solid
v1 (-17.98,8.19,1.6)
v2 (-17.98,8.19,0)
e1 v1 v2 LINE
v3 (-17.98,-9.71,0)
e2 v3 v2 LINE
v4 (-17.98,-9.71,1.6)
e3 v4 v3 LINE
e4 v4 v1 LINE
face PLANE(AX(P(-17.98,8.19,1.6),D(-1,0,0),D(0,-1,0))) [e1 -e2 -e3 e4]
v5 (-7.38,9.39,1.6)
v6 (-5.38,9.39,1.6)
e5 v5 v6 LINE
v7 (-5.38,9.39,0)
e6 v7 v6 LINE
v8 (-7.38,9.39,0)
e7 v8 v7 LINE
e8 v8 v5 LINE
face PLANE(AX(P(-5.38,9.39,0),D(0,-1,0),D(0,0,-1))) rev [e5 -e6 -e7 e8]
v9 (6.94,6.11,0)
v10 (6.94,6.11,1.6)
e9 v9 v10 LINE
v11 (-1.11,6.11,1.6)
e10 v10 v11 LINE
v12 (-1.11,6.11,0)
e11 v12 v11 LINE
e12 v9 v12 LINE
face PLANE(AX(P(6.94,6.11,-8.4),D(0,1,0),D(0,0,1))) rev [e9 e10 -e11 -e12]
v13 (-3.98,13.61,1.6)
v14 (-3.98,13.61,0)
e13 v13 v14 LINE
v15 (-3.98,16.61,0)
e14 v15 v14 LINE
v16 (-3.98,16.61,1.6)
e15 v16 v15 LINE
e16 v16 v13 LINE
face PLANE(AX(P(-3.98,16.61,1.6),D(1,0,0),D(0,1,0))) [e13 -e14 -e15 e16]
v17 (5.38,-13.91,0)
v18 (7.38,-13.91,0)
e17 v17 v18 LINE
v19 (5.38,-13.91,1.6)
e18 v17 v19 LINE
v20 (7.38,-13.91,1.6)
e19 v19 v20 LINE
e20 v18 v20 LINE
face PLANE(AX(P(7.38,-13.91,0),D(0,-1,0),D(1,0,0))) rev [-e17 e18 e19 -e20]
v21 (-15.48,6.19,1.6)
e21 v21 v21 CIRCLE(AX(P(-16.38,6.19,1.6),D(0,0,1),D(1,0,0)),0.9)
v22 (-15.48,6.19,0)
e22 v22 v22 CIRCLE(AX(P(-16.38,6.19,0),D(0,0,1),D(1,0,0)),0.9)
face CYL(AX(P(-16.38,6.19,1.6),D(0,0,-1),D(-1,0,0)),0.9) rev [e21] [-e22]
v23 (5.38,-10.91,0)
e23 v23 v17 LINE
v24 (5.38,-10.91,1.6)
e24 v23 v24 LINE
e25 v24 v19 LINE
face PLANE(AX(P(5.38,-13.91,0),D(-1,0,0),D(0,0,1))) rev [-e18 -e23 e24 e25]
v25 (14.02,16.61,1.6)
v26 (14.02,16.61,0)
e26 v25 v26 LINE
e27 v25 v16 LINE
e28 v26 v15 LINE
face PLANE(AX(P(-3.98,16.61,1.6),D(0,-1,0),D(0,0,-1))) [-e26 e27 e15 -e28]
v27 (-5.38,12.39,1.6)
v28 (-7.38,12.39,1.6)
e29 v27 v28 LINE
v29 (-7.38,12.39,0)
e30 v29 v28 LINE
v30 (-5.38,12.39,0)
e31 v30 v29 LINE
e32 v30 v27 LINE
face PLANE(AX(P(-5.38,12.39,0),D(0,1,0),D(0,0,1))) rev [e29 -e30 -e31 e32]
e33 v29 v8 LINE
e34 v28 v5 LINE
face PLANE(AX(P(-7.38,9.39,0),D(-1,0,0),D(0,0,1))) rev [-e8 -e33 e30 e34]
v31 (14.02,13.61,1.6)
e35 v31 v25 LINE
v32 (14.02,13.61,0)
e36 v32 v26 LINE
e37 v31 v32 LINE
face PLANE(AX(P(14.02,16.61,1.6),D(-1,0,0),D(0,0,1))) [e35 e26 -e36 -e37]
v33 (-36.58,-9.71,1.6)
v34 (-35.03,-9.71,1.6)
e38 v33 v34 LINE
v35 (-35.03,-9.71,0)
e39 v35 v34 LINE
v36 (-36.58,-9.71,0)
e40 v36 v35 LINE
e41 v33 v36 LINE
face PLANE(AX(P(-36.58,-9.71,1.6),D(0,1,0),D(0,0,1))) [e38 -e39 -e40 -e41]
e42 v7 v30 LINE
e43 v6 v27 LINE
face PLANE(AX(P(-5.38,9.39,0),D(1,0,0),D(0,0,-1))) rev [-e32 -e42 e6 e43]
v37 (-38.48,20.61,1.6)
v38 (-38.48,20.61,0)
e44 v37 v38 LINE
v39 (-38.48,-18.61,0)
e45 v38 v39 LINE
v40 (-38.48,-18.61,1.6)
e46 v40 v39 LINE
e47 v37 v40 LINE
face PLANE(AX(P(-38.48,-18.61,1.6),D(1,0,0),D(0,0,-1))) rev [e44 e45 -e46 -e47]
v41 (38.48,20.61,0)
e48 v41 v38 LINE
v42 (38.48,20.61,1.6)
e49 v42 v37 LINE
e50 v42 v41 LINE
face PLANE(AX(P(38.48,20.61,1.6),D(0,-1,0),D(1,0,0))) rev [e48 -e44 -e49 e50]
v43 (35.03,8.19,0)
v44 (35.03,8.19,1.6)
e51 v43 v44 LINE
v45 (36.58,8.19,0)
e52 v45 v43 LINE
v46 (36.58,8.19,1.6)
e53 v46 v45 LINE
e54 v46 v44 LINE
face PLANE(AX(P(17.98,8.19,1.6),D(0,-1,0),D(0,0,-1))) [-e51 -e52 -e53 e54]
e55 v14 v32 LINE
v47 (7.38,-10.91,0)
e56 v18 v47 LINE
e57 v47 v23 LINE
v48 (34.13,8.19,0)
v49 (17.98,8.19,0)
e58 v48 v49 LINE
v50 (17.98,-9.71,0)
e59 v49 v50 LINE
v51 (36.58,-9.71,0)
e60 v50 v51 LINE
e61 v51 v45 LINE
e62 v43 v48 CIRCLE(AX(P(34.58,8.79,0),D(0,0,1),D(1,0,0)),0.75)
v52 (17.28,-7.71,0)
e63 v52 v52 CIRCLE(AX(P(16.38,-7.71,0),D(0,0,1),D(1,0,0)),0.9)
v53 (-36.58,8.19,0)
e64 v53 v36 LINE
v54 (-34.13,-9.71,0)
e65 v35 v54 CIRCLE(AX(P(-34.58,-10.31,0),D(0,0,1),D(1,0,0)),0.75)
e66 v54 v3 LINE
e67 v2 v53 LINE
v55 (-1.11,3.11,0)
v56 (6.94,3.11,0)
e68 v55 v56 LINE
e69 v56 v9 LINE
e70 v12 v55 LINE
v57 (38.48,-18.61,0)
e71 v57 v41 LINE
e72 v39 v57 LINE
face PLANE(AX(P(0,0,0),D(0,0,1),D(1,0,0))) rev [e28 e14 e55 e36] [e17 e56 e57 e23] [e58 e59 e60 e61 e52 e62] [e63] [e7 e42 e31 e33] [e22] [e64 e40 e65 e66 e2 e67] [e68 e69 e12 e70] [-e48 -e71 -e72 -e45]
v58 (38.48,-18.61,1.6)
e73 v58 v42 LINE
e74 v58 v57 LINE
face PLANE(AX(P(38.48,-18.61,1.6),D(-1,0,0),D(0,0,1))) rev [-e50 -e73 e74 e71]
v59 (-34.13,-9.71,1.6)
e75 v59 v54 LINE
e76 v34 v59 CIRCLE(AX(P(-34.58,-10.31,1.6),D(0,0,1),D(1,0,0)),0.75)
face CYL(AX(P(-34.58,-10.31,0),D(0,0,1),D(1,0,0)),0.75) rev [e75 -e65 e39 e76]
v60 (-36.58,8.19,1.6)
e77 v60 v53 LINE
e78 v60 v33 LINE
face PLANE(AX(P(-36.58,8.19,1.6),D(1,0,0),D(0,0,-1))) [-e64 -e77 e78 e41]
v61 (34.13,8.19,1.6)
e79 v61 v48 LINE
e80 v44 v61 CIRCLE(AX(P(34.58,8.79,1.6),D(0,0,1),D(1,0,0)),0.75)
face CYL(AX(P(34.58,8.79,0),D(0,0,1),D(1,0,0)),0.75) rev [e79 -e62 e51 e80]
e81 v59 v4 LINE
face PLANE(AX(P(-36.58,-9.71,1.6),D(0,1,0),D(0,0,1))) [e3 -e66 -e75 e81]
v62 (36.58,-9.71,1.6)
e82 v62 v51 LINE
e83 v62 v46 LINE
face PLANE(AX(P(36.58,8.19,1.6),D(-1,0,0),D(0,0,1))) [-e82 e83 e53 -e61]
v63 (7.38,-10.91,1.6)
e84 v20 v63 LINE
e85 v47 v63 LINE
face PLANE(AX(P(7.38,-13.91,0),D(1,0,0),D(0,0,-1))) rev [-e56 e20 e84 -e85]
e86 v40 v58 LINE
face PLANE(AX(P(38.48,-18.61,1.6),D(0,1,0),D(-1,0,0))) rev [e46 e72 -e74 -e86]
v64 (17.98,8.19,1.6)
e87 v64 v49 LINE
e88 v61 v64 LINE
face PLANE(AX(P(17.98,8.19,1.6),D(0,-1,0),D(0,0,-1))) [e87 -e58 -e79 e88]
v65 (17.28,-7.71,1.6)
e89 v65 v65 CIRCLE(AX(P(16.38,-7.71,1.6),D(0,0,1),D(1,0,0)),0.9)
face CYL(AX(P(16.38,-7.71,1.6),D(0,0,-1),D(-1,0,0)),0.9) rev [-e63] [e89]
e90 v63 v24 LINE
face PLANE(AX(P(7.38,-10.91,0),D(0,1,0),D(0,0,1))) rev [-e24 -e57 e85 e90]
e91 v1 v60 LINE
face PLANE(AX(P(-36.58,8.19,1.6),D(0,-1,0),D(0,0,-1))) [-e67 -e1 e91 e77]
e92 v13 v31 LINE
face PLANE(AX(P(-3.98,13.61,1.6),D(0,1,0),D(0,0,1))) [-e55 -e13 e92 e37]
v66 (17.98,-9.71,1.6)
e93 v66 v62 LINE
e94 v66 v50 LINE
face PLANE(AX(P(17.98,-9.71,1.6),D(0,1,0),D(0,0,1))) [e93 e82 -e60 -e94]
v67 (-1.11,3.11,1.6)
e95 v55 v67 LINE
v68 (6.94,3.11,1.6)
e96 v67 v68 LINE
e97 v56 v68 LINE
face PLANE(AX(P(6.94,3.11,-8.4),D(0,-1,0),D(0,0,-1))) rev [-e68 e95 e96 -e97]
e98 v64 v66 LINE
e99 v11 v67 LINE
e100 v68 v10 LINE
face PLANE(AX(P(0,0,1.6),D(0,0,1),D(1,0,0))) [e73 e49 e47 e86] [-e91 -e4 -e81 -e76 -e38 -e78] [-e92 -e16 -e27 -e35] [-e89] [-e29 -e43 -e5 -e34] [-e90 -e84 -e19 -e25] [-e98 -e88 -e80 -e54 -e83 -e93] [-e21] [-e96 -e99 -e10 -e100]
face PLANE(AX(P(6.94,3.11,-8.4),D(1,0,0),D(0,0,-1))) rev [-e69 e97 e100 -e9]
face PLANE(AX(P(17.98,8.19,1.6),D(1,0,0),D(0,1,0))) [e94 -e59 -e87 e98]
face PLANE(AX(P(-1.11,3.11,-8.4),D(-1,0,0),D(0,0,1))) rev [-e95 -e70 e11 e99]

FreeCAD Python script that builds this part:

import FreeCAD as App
import Part
import Sketcher
from FreeCAD import Vector

doc = App.newDocument("Part")
body = doc.addObject("PartDesign::Body", "Body")

sketch1 = doc.addObject("Sketcher::SketchObject", "Sketch")
body.addObject(sketch1)
sketch1.AttachmentSupport = (doc.XY_Plane, [""])
sketch1.MapMode = "FlatFace"
sketch1.addGeometry([
    Part.LineSegment(Vector(-38.5, 20.6, 0), Vector(-38.5, -18.6, 0)),
    Part.LineSegment(Vector(-38.5, -18.6, 0), Vector(38.5, -18.6, 0)),
    Part.LineSegment(Vector(38.5, -18.6, 0), Vector(38.5, 20.6, 0)),
    Part.LineSegment(Vector(38.5, 20.6, 0), Vector(-38.5, 20.6, 0)),
    Part.LineSegment(Vector(-18, -9.7, 0), Vector(-36.6, -9.7, 0)),
    Part.LineSegment(Vector(-36.6, -9.7, 0), Vector(-36.6, 8.2, 0)),
    Part.LineSegment(Vector(-36.6, 8.2, 0), Vector(-18, 8.2, 0)),
    Part.LineSegment(Vector(-18, 8.2, 0), Vector(-18, -9.7, 0)),
    Part.Circle(Vector(16.4, -7.7, 0), Vector(0, 0, 1), 0.9),
    Part.LineSegment(Vector(36.6, -9.7, 0), Vector(18, -9.7, 0)),
    Part.LineSegment(Vector(18, -9.7, 0), Vector(18, 8.2, 0)),
    Part.LineSegment(Vector(18, 8.2, 0), Vector(36.6, 8.2, 0)),
    Part.LineSegment(Vector(36.6, 8.2, 0), Vector(36.6, -9.7, 0)),
    Part.Circle(Vector(-16.4, 6.2, 0), Vector(0, 0, 1), 0.9),
    Part.LineSegment(Vector(14, 13.6, 0), Vector(-4, 13.6, 0)),
    Part.LineSegment(Vector(-4, 13.6, 0), Vector(-4, 16.6, 0)),
    Part.LineSegment(Vector(-4, 16.6, 0), Vector(14, 16.6, 0)),
    Part.LineSegment(Vector(14, 16.6, 0), Vector(14, 13.6, 0)),
], False)
sketch1.addConstraint([
    Sketcher.Constraint("Coincident", 0, 2, 1, 1),
    Sketcher.Constraint("Coincident", 1, 2, 2, 1),
    Sketcher.Constraint("Coincident", 2, 2, 3, 1),
    Sketcher.Constraint("Coincident", 3, 2, 0, 1),
    Sketcher.Constraint("Coincident", 4, 2, 5, 1),
    Sketcher.Constraint("Coincident", 5, 2, 6, 1),
    Sketcher.Constraint("Coincident", 6, 2, 7, 1),
    Sketcher.Constraint("Coincident", 7, 2, 4, 1),
    Sketcher.Constraint("Coincident", 9, 2, 10, 1),
    Sketcher.Constraint("Coincident", 10, 2, 11, 1),
    Sketcher.Constraint("Coincident", 11, 2, 12, 1),
    Sketcher.Constraint("Coincident", 12, 2, 9, 1),
    Sketcher.Constraint("Coincident", 14, 2, 15, 1),
    Sketcher.Constraint("Coincident", 15, 2, 16, 1),
    Sketcher.Constraint("Coincident", 16, 2, 17, 1),
    Sketcher.Constraint("Coincident", 17, 2, 14, 1),
    Sketcher.Constraint("Vertical", 0),
    Sketcher.Constraint("Horizontal", 1),
    Sketcher.Constraint("Vertical", 2),
    Sketcher.Constraint("Horizontal", 3),
    Sketcher.Constraint("Horizontal", 4),
    Sketcher.Constraint("Vertical", 5),
    Sketcher.Constraint("Horizontal", 6),
    Sketcher.Constraint("Vertical", 7),
    Sketcher.Constraint("Horizontal", 9),
    Sketcher.Constraint("Vertical", 10),
    Sketcher.Constraint("Horizontal", 11),
    Sketcher.Constraint("Vertical", 12),
    Sketcher.Constraint("Horizontal", 14),
    Sketcher.Constraint("Vertical", 15),
    Sketcher.Constraint("Horizontal", 16),
    Sketcher.Constraint("Vertical", 17),
    Sketcher.Constraint("Equal", 8, 13),
    Sketcher.Constraint("Symmetric", 7, 2, 9, 2, -2),
    Sketcher.Constraint("Symmetric", 5, 2, 11, 2, -2),
    Sketcher.Constraint("Diameter", 8, 1.8),
    Sketcher.Constraint("DistanceX", 14, 2, 14, 1, 18.0),
    Sketcher.Constraint("DistanceY", 15, 1, 15, 2, 3.0),
    Sketcher.Constraint("DistanceX", 4, 2, 4, 1, 18.6),
    Sketcher.Constraint("DistanceY", 5, 1, 5, 2, 17.9),
    Sketcher.Constraint("DistanceY", 4, 2, 8, 3, 2.0),
    Sketcher.Constraint("DistanceY", 13, 3, 5, 2, 2.0),
    Sketcher.Constraint("DistanceX", 6, 2, 14, 2, 14.0),
    Sketcher.Constraint("DistanceX", 1, 1, 1, 2, 76.96),
    Sketcher.Constraint("DistanceY", 0, 2, 0, 1, 39.22),
    Sketcher.Constraint("DistanceX", 0, 2, 13, 3, 22.1),
    Sketcher.Constraint("DistanceY", 0, 2, 13, 3, 24.8),
    Sketcher.Constraint("DistanceX", 8, 3, 1, 2, 22.1),
    Sketcher.Constraint("DistanceX", 0, 2, 4, 2, 1.9),
    Sketcher.Constraint("DistanceX", 8, 3, 9, 2, 1.6),
    Sketcher.Constraint("DistanceY", 8, 3, -1, 1, 7.71),
    Sketcher.Constraint("DistanceY", -1, 1, 14, 2, 13.61),
])
pad1 = doc.addObject("PartDesign::Pad", "Pad")
body.addObject(pad1)
pad1.Profile = sketch1
pad1.Length = 1.6

sketch2 = doc.addObject("Sketcher::SketchObject", "Sketch001")
body.addObject(sketch2)
sketch2.AttachmentSupport = (doc.XY_Plane, [""])
sketch2.MapMode = "FlatFace"
sketch2.AttachmentOffset = App.Placement(Vector(0, 0, 1.6), App.Rotation())
sketch2.addGeometry([
    Part.Circle(Vector(34.6, 8.8, 0), Vector(0, 0, 1), 0.8),
    Part.Circle(Vector(-34.6, -10.3, 0), Vector(0, 0, 1), 0.8),
], False)
sketch2.addConstraint([
    Sketcher.Constraint("Equal", 0, 1),
    Sketcher.Constraint("Diameter", 0, 1.5),
    Sketcher.Constraint("DistanceY", 1, 3, 0, 3, 19.1),
    Sketcher.Constraint("DistanceX", -1, 1, 0, 3, 34.58),
    Sketcher.Constraint("DistanceY", -1, 1, 0, 3, 8.79),
    Sketcher.Constraint("DistanceX", 1, 3, -1, 1, 34.58),
])
pocket1 = doc.addObject("PartDesign::Pocket", "Pocket")
body.addObject(pocket1)
pocket1.Profile = sketch2
pocket1.Length = 1.6

sketch3 = doc.addObject("Sketcher::SketchObject", "Sketch002")
body.addObject(sketch3)
sketch3.AttachmentSupport = (doc.XY_Plane, [""])
sketch3.MapMode = "FlatFace"
sketch3.AttachmentOffset = App.Placement(Vector(0, 0, 1.6), App.Rotation())
sketch3.addGeometry([
    Part.LineSegment(Vector(5.4, -10.9, 0), Vector(5.4, -13.9, 0)),
    Part.LineSegment(Vector(5.4, -13.9, 0), Vector(7.4, -13.9, 0)),
    Part.LineSegment(Vector(7.4, -13.9, 0), Vector(7.4, -10.9, 0)),
    Part.LineSegment(Vector(7.4, -10.9, 0), Vector(5.4, -10.9, 0)),
    Part.LineSegment(Vector(-7.4, 12.4, 0), Vector(-7.4, 9.4, 0)),
    Part.LineSegment(Vector(-7.4, 9.4, 0), Vector(-5.4, 9.4, 0)),
    Part.LineSegment(Vector(-5.4, 9.4, 0), Vector(-5.4, 12.4, 0)),
    Part.LineSegment(Vector(-5.4, 12.4, 0), Vector(-7.4, 12.4, 0)),
], False)
sketch3.addConstraint([
    Sketcher.Constraint("Coincident", 0, 2, 1, 1),
    Sketcher.Constraint("Coincident", 1, 2, 2, 1),
    Sketcher.Constraint("Coincident", 2, 2, 3, 1),
    Sketcher.Constraint("Coincident", 3, 2, 0, 1),
    Sketcher.Constraint("Coincident", 4, 2, 5, 1),
    Sketcher.Constraint("Coincident", 5, 2, 6, 1),
    Sketcher.Constraint("Coincident", 6, 2, 7, 1),
    Sketcher.Constraint("Coincident", 7, 2, 4, 1),
    Sketcher.Constraint("Vertical", 0),
    Sketcher.Constraint("Horizontal", 1),
    Sketcher.Constraint("Vertical", 2),
    Sketcher.Constraint("Horizontal", 3),
    Sketcher.Constraint("Vertical", 4),
    Sketcher.Constraint("Horizontal", 5),
    Sketcher.Constraint("Vertical", 6),
    Sketcher.Constraint("Horizontal", 7),
    Sketcher.Constraint("Equal", 3, 5),
    Sketcher.Constraint("Equal", 2, 4),
    Sketcher.Constraint("DistanceX", 1, 1, 1, 2, 2.0),
    Sketcher.Constraint("DistanceY", 0, 2, 0, 1, 3.0),
    Sketcher.Constraint("DistanceY", 3, 2, 4, 2, 20.3),
    Sketcher.Constraint("DistanceX", -1, 1, 0, 2, 5.38),
    Sketcher.Constraint("DistanceY", 0, 2, -1, 1, 13.91),
    Sketcher.Constraint("DistanceX", 4, 2, -1, 1, 7.38),
])
pocket2 = doc.addObject("PartDesign::Pocket", "Pocket001")
body.addObject(pocket2)
pocket2.Profile = sketch3
pocket2.Length = 1.6

sketch4 = doc.addObject("Sketcher::SketchObject", "Sketch003")
body.addObject(sketch4)
sketch4.AttachmentSupport = (doc.XY_Plane, [""])
sketch4.MapMode = "FlatFace"
sketch4.AttachmentOffset = App.Placement(Vector(0, 0, 1.6), App.Rotation())
sketch4.addGeometry([
    Part.LineSegment(Vector(-1.1, 6.1, 0), Vector(-1.1, 3.1, 0)),
    Part.LineSegment(Vector(-1.1, 3.1, 0), Vector(6.9, 3.1, 0)),
    Part.LineSegment(Vector(6.9, 3.1, 0), Vector(6.9, 6.1, 0)),
    Part.LineSegment(Vector(6.9, 6.1, 0), Vector(-1.1, 6.1, 0)),
], False)
sketch4.addConstraint([
    Sketcher.Constraint("Coincident", 0, 2, 1, 1),
    Sketcher.Constraint("Coincident", 1, 2, 2, 1),
    Sketcher.Constraint("Coincident", 2, 2, 3, 1),
    Sketcher.Constraint("Coincident", 3, 2, 0, 1),
    Sketcher.Constraint("Vertical", 0),
    Sketcher.Constraint("Horizontal", 1),
    Sketcher.Constraint("Vertical", 2),
    Sketcher.Constraint("Horizontal", 3),
    Sketcher.Constraint("DistanceY", 0, 2, 0, 1, 3.0),
    Sketcher.Constraint("DistanceX", 1, 1, 1, 2, 8.05),
    Sketcher.Constraint("DistanceX", 0, 2, -1, 1, 1.11),
    Sketcher.Constraint("DistanceY", -1, 1, 0, 2, 3.11),
])
pocket3 = doc.addObject("PartDesign::Pocket", "Pocket002")
body.addObject(pocket3)
pocket3.Profile = sketch4
pocket3.Length = 10

doc.recompute()
